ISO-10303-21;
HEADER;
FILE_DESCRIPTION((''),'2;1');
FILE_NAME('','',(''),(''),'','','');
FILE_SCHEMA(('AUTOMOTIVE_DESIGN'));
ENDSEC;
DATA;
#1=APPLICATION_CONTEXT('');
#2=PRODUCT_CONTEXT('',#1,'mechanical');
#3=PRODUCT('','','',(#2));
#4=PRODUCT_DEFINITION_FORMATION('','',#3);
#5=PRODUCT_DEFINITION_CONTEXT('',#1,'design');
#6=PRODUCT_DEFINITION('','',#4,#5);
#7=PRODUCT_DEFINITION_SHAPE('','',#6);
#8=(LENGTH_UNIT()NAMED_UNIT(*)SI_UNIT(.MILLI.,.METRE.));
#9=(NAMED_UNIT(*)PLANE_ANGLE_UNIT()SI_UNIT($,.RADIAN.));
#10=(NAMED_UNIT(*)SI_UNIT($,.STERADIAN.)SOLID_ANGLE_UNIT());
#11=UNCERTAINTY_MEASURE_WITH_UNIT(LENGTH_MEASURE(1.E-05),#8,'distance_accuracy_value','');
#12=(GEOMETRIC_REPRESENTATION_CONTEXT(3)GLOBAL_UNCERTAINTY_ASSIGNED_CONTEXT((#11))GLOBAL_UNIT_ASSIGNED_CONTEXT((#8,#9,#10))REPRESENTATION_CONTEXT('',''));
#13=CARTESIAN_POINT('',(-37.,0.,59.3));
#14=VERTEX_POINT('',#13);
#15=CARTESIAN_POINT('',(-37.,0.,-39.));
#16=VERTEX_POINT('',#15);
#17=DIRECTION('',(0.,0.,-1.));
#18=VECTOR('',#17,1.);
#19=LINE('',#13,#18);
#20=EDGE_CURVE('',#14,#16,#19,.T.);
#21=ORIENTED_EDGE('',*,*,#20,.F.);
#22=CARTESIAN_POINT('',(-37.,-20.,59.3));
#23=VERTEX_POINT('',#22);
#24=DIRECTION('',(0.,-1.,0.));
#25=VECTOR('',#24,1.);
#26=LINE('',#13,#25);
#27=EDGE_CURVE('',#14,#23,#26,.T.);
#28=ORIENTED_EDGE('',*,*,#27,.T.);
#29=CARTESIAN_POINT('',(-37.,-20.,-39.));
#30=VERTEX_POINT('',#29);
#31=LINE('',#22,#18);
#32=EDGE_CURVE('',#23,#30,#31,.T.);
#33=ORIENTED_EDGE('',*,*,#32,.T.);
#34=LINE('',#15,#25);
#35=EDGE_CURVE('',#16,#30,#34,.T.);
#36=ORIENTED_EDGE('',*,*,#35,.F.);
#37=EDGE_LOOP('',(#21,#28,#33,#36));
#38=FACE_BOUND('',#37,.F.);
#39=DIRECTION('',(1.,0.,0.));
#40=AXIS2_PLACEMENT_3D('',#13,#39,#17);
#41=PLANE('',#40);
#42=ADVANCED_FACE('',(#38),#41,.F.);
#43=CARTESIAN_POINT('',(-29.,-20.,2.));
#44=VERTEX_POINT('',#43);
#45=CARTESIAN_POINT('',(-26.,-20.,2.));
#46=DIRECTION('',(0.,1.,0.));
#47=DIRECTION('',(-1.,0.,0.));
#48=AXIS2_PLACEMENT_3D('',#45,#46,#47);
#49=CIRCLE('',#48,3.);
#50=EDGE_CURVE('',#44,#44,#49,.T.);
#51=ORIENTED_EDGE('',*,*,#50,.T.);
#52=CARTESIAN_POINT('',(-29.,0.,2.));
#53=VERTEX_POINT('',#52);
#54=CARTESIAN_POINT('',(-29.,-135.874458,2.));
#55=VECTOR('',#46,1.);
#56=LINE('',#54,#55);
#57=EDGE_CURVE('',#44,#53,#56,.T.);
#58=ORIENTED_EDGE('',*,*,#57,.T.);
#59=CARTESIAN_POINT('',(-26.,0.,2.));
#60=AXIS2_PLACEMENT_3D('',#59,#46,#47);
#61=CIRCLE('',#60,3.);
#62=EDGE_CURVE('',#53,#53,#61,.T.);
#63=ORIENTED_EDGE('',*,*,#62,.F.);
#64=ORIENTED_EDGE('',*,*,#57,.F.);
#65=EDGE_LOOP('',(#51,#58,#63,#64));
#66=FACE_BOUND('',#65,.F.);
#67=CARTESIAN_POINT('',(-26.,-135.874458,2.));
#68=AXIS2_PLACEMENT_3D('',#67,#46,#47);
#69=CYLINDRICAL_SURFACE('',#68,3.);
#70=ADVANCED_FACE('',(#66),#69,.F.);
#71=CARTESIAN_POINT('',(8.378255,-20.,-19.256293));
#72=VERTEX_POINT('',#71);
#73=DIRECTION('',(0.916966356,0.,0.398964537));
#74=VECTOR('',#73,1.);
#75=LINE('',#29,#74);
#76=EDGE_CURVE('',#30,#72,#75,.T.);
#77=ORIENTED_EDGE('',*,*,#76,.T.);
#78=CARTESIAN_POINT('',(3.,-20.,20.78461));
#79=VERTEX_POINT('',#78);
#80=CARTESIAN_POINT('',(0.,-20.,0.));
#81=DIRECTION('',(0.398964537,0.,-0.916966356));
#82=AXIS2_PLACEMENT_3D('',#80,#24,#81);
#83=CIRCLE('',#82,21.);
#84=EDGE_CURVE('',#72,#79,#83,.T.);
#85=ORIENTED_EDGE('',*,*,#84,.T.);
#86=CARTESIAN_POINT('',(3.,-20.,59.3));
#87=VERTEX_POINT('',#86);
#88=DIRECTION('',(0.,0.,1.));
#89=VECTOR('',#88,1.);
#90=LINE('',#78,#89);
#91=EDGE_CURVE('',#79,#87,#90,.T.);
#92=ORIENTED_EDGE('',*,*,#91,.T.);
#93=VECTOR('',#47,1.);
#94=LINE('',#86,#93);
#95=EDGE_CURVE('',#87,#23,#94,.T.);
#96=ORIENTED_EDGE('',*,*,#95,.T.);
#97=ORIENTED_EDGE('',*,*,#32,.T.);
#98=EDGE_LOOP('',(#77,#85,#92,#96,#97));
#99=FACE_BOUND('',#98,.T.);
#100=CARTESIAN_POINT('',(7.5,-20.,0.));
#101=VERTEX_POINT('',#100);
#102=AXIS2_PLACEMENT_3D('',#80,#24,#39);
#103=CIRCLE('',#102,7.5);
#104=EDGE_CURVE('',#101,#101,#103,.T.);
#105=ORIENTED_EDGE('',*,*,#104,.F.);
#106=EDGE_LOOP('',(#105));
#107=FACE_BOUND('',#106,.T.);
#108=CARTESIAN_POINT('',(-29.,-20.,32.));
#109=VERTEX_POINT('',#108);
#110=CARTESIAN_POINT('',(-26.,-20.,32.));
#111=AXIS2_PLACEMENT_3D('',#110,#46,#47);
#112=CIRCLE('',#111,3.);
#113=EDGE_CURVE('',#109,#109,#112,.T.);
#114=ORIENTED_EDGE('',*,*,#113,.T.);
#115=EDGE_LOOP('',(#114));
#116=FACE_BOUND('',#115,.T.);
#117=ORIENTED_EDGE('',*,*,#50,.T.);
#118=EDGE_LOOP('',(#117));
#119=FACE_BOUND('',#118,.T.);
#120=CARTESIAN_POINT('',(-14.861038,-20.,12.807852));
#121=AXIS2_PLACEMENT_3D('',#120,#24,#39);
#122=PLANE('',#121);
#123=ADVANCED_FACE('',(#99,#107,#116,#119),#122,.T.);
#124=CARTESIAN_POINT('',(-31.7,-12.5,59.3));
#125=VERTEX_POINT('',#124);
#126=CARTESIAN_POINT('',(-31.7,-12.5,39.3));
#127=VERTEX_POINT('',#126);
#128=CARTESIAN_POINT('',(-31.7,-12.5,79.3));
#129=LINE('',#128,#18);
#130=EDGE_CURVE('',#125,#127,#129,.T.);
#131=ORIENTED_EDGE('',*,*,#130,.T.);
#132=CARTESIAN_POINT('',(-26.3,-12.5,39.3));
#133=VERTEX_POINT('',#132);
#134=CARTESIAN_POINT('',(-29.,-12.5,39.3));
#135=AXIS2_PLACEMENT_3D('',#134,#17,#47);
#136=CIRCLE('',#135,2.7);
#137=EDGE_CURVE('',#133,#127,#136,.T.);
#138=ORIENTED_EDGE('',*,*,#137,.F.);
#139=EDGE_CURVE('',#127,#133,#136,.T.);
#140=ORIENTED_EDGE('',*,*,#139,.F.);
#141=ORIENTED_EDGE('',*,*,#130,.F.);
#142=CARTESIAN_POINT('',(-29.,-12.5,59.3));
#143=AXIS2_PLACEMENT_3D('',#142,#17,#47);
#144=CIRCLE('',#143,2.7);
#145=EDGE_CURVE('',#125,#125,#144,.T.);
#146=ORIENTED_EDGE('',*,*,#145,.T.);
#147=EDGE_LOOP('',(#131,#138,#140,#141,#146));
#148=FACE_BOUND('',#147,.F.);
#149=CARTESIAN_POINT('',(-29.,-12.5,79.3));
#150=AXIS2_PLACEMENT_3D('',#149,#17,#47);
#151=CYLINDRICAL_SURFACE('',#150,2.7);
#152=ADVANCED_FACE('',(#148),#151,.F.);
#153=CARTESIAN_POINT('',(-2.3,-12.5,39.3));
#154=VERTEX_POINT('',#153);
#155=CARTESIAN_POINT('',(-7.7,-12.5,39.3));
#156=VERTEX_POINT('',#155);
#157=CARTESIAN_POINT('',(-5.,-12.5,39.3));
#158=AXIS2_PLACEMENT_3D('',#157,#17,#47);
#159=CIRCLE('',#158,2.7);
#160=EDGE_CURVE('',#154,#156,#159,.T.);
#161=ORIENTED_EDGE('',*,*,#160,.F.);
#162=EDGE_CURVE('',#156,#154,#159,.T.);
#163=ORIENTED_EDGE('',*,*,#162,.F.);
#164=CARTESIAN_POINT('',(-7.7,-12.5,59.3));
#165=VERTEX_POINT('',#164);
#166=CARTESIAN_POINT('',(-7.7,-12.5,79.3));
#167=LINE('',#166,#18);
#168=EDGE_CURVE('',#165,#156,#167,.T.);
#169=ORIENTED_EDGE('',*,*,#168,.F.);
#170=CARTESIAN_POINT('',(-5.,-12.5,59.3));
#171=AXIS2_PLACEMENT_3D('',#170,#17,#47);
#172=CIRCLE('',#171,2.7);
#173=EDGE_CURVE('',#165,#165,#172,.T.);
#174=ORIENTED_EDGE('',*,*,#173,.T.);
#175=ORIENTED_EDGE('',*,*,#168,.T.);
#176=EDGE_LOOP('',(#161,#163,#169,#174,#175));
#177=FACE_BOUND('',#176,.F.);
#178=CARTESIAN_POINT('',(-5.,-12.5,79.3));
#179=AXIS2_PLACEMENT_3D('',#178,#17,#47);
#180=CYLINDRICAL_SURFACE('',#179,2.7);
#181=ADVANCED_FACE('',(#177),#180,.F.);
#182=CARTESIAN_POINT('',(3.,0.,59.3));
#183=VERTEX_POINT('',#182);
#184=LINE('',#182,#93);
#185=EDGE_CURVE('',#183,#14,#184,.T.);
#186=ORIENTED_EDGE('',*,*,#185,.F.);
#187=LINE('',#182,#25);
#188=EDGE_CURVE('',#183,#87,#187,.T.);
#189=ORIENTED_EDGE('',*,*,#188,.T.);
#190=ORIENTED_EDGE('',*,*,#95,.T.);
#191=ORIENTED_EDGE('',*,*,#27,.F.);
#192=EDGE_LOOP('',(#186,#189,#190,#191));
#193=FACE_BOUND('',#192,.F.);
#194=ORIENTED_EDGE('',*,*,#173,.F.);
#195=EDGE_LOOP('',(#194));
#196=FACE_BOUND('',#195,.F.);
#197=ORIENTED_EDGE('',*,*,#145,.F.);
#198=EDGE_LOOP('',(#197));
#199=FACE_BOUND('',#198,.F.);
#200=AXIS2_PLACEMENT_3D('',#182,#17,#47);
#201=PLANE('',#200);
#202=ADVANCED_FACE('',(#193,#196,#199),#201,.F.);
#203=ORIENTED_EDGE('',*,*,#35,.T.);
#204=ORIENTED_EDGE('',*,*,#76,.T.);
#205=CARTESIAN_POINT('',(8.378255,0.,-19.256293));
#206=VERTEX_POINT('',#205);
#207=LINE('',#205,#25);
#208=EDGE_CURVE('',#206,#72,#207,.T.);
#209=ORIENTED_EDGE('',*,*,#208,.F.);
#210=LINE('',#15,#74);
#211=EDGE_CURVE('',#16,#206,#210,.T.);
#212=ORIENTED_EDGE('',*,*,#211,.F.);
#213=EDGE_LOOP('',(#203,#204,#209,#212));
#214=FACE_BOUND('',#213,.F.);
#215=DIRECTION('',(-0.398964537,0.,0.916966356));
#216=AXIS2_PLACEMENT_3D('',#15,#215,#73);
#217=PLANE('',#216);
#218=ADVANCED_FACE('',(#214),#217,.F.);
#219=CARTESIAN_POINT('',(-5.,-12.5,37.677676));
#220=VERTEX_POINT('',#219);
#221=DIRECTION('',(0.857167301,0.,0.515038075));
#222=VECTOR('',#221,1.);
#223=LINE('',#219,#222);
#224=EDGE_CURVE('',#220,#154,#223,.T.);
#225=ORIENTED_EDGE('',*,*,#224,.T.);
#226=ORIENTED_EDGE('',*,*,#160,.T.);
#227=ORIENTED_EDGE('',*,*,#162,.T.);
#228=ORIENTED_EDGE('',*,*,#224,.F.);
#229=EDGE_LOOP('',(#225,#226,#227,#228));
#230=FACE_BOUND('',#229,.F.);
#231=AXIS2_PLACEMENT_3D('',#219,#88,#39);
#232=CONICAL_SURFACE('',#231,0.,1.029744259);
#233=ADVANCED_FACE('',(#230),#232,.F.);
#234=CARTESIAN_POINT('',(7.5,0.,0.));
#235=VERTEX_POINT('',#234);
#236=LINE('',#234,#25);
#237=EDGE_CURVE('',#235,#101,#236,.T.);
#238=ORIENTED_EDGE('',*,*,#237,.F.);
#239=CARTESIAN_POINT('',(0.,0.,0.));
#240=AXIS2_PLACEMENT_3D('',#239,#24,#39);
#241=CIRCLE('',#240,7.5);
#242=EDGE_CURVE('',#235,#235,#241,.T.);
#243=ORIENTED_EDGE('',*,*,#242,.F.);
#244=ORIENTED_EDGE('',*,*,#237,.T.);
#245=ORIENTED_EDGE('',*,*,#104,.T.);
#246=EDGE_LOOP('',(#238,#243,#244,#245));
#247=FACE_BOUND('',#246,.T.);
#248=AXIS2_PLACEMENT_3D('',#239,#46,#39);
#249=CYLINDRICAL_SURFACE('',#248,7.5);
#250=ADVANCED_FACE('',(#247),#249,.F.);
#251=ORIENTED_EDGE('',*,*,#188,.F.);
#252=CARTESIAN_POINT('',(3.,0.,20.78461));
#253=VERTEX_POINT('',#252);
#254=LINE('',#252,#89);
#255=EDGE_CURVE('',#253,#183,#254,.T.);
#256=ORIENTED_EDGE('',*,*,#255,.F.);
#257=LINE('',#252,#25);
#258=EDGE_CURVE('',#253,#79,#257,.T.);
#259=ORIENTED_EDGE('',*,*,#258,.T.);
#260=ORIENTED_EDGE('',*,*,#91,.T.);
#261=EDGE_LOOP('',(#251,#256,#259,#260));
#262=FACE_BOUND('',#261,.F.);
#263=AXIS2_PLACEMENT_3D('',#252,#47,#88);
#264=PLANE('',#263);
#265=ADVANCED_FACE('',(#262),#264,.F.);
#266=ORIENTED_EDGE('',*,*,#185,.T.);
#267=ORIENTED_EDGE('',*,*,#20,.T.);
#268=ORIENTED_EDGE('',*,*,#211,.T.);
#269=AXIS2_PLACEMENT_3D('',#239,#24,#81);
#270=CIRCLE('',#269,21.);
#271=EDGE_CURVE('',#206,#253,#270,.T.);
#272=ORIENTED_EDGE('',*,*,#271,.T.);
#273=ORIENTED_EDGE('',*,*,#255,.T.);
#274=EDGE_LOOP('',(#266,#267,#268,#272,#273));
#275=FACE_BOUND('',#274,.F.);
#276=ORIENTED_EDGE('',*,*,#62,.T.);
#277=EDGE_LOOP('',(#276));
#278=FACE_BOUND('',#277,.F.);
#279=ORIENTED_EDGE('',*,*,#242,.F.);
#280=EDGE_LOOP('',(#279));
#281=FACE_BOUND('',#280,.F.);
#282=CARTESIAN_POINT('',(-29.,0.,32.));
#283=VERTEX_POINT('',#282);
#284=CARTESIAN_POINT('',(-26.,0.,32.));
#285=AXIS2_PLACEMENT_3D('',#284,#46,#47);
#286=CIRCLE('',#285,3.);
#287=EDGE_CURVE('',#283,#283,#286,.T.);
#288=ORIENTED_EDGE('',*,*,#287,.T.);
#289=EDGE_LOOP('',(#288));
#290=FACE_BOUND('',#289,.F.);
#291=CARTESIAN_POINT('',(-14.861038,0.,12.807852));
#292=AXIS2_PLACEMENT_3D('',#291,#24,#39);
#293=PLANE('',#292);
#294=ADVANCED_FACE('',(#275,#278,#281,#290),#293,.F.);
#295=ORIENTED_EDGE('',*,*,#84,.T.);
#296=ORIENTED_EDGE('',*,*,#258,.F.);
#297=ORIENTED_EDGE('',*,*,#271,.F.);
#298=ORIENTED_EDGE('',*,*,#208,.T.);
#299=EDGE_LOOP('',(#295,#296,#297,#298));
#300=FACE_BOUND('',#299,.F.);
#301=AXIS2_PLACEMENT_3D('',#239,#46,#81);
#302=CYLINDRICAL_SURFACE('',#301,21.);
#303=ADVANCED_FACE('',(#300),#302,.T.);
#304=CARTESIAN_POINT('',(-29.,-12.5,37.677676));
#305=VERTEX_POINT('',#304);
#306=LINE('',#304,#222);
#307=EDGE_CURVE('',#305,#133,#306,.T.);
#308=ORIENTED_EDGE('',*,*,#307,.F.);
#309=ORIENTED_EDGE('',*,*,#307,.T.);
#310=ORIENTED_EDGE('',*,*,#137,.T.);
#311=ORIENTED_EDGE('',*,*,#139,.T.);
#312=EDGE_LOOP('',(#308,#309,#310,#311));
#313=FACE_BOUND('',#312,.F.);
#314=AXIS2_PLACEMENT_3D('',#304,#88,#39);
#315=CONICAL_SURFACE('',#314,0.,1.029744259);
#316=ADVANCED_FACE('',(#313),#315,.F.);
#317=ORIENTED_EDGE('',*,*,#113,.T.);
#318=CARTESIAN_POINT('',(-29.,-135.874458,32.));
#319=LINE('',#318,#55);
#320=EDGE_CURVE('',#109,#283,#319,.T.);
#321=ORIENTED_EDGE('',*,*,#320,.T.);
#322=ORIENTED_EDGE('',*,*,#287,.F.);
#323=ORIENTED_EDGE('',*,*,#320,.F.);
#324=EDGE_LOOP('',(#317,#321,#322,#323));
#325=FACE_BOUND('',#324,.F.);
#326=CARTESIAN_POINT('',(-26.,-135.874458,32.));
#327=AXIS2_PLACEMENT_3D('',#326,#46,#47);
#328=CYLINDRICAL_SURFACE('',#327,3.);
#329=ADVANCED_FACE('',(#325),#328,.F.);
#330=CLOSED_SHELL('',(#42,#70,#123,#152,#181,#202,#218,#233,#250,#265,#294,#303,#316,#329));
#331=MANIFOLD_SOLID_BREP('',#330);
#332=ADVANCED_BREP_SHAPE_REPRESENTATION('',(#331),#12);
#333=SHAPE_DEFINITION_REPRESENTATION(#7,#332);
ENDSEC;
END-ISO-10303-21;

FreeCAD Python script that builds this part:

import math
import FreeCAD as App
import Part
import Sketcher
from FreeCAD import Vector
Q = App.Units.Quantity

doc = App.newDocument("Part")
params = doc.addObject("Spreadsheet::Sheet", "Params")
for row, (alias, value) in enumerate([
    ("sketch1_diameter", "15 mm"),
    ("sketch1_radius", "21 mm"),
    ("sketch1_width", "40 mm"),
    ("sketch1_height", "98.3 mm"),
    ("pad1_length", "20 mm"),
    ("sketch2_diameter", "5.4 mm"),
    ("hole_diameter", "5.4 mm"),
    ("hole_depth", "20 mm"),
    ("sketch3_diameter", "6 mm"),
    ("hole2_diameter", "6 mm"),
], start=1):
    params.set(f"A{row}", alias)
    params.set(f"B{row}", "=" + value)
    params.setAlias(f"B{row}", alias)

body = doc.addObject("PartDesign::Body", "Body")

sketch1 = body.newObject("Sketcher::SketchObject", "Sketch")
sketch1.AttachmentSupport = (doc.getObject("XZ_Plane"), [""])
sketch1.MapMode = "FlatFace"
sketch1.addGeometry([
    Part.LineSegment(Vector(-37, -39, 0), Vector(8, -19, 0)),
    Part.ArcOfCircle(Part.Circle(Vector(0, 0, 0), Vector(0, 0, 1), 21), math.radians(-66), math.radians(82)),
    Part.LineSegment(Vector(3, 21, 0), Vector(3, 59, 0)),
    Part.LineSegment(Vector(3, 59, 0), Vector(-37, 59, 0)),
    Part.LineSegment(Vector(-37, 59, 0), Vector(-37, -39, 0)),
    Part.Circle(Vector(0, 0, 0), Vector(0, 0, 1), 8),
], False)
sketch1.addConstraint([
    Sketcher.Constraint("Tangent", 0, 2, 1, 1),
    Sketcher.Constraint("Coincident", 1, 2, 2, 1),
    Sketcher.Constraint("Coincident", 2, 2, 3, 1),
    Sketcher.Constraint("Coincident", 3, 2, 4, 1),
    Sketcher.Constraint("Coincident", 4, 2, 0, 1),
    Sketcher.Constraint("Vertical", 2),
    Sketcher.Constraint("Horizontal", 3),
    Sketcher.Constraint("Vertical", 4),
    Sketcher.Constraint("Coincident", 1, 3, -1, 1),
    Sketcher.Constraint("Coincident", 5, 3, -1, 1),
    Sketcher.Constraint("Diameter", 5, Q("15 mm")),
    Sketcher.Constraint("Radius", 1, Q("21 mm")),
    Sketcher.Constraint("DistanceX", 3, 2, 3, 1, Q("40 mm")),
    Sketcher.Constraint("DistanceY", 4, 2, 4, 1, Q("98.3 mm")),
    Sketcher.Constraint("DistanceX", -1, 1, 1, 2, Q("3 mm")),
    Sketcher.Constraint("DistanceY", 4, 2, -1, 1, Q("39 mm")),
])
sketch1.setExpression("Constraints[10]", "Params.sketch1_diameter")
sketch1.setExpression("Constraints[11]", "Params.sketch1_radius")
sketch1.setExpression("Constraints[12]", "Params.sketch1_width")
sketch1.setExpression("Constraints[13]", "Params.sketch1_height")
pad1 = body.newObject("PartDesign::Pad", "Pad")
pad1.Profile = sketch1
pad1.setExpression("Length", "Params.pad1_length")

sketch2 = body.newObject("Sketcher::SketchObject", "Sketch001")
sketch2.AttachmentSupport = (doc.getObject("XY_Plane"), [""])
sketch2.MapMode = "FlatFace"
sketch2.AttachmentOffset = App.Placement(Vector(0, 0, 59.3), App.Rotation())
sketch2.addGeometry([
    Part.Circle(Vector(-29, -12.5, 0), Vector(0, 0, 1), 2.7),
    Part.Circle(Vector(-5, -12.5, 0), Vector(0, 0, 1), 2.7),
], False)
sketch2.addConstraint([
    Sketcher.Constraint("Equal", 0, 1),
    Sketcher.Constraint("Horizontal", 0, 3, 1, 3),
    Sketcher.Constraint("Diameter", 0, Q("5.4 mm")),
    Sketcher.Constraint("DistanceX", 0, 3, -1, 1, Q("29 mm")),
    Sketcher.Constraint("DistanceX", 1, 3, -1, 1, Q("5 mm")),
    Sketcher.Constraint("DistanceY", 0, 3, -1, 1, Q("12.5 mm")),
])
sketch2.setExpression("Constraints[2]", "Params.sketch2_diameter")
doc.recompute()
hole = body.newObject("PartDesign::Hole", "Hole")
hole.Profile = sketch2
hole.ThreadType = "None"
hole.setExpression("Diameter", "Params.hole_diameter")
hole.DepthType = "Dimension"
hole.setExpression("Depth", "Params.hole_depth")
hole.DrillPoint = "Angled"
hole.DrillPointAngle = 118

sketch3 = body.newObject("Sketcher::SketchObject", "Sketch002")
sketch3.AttachmentSupport = (doc.getObject("XZ_Plane"), [""])
sketch3.MapMode = "FlatFace"
sketch3.AttachmentOffset = App.Placement(Vector(0, 0, 20), App.Rotation())
sketch3.addGeometry([
    Part.Circle(Vector(-26, 32, 0), Vector(0, 0, 1), 3),
    Part.Circle(Vector(-26, 2, 0), Vector(0, 0, 1), 3),
], False)
sketch3.addConstraint([
    Sketcher.Constraint("Equal", 0, 1),
    Sketcher.Constraint("Vertical", 0, 3, 1, 3),
    Sketcher.Constraint("Diameter", 0, Q("6 mm")),
    Sketcher.Constraint("DistanceX", 0, 3, -1, 1, Q("26 mm")),
    Sketcher.Constraint("DistanceY", -1, 1, 0, 3, Q("32 mm")),
    Sketcher.Constraint("DistanceY", -1, 1, 1, 3, Q("2 mm")),
])
sketch3.setExpression("Constraints[2]", "Params.sketch3_diameter")
doc.recompute()
hole2 = body.newObject("PartDesign::Hole", "Hole001")
hole2.Profile = sketch3
hole2.ThreadType = "None"
hole2.setExpression("Diameter", "Params.hole2_diameter")
hole2.DepthType = "ThroughAll"

doc.recompute()
